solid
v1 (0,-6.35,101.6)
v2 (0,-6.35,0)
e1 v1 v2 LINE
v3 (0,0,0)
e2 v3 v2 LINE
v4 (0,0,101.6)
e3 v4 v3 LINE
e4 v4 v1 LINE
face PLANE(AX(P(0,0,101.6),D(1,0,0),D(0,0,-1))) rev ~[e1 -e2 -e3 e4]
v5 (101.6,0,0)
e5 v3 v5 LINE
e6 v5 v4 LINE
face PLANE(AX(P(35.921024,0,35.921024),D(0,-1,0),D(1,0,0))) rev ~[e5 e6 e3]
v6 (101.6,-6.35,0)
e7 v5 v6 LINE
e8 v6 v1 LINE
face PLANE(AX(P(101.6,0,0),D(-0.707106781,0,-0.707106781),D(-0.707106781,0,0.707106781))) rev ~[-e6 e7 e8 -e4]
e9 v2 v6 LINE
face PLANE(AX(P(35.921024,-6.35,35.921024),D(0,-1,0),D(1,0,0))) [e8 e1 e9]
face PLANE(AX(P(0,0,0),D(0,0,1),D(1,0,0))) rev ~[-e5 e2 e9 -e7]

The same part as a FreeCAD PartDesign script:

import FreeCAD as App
import Part
import Sketcher

V = App.Vector
Q = App.Units.Quantity

doc = App.newDocument("Part")
params = doc.addObject("Spreadsheet::Sheet", "Params")
for row, (alias, value) in enumerate([
    ("sketch1_width", "4 in"),
    ("pad1_length", "0.25 in"),
], start=1):
    params.set(f"A{row}", alias)
    params.set(f"B{row}", "=" + value)
    params.setAlias(f"B{row}", alias)

body = doc.addObject("PartDesign::Body", "Body")

sketch1 = body.newObject("Sketcher::SketchObject", "Sketch")
sketch1.AttachmentSupport = (doc.getObject("XZ_Plane"), [""])
sketch1.MapMode = "FlatFace"
sketch1.addGeometry([
    Part.LineSegment(V(102, 0, 0), V(0, 102, 0)),
    Part.LineSegment(V(0, 102, 0), V(0, 0, 0)),
    Part.LineSegment(V(0, 0, 0), V(102, 0, 0)),
], False)
sketch1.addConstraint([
    Sketcher.Constraint("Coincident", 0, 2, 1, 1),
    Sketcher.Constraint("Coincident", 1, 2, 2, 1),
    Sketcher.Constraint("Coincident", 2, 2, 0, 1),
    Sketcher.Constraint("Vertical", 1),
    Sketcher.Constraint("Horizontal", 2),
    Sketcher.Constraint("Coincident", 1, 2, -1, 1),
    Sketcher.Constraint("Equal", 2, 1),
    Sketcher.Constraint("DistanceX", 2, 1, 2, 2, Q("4 in")),
])
sketch1.setExpression("Constraints[7]", "Params.sketch1_width")
pad1 = body.newObject("PartDesign::Pad", "Pad")
pad1.Profile = sketch1
pad1.setExpression("Length", "Params.pad1_length")

doc.recompute()
